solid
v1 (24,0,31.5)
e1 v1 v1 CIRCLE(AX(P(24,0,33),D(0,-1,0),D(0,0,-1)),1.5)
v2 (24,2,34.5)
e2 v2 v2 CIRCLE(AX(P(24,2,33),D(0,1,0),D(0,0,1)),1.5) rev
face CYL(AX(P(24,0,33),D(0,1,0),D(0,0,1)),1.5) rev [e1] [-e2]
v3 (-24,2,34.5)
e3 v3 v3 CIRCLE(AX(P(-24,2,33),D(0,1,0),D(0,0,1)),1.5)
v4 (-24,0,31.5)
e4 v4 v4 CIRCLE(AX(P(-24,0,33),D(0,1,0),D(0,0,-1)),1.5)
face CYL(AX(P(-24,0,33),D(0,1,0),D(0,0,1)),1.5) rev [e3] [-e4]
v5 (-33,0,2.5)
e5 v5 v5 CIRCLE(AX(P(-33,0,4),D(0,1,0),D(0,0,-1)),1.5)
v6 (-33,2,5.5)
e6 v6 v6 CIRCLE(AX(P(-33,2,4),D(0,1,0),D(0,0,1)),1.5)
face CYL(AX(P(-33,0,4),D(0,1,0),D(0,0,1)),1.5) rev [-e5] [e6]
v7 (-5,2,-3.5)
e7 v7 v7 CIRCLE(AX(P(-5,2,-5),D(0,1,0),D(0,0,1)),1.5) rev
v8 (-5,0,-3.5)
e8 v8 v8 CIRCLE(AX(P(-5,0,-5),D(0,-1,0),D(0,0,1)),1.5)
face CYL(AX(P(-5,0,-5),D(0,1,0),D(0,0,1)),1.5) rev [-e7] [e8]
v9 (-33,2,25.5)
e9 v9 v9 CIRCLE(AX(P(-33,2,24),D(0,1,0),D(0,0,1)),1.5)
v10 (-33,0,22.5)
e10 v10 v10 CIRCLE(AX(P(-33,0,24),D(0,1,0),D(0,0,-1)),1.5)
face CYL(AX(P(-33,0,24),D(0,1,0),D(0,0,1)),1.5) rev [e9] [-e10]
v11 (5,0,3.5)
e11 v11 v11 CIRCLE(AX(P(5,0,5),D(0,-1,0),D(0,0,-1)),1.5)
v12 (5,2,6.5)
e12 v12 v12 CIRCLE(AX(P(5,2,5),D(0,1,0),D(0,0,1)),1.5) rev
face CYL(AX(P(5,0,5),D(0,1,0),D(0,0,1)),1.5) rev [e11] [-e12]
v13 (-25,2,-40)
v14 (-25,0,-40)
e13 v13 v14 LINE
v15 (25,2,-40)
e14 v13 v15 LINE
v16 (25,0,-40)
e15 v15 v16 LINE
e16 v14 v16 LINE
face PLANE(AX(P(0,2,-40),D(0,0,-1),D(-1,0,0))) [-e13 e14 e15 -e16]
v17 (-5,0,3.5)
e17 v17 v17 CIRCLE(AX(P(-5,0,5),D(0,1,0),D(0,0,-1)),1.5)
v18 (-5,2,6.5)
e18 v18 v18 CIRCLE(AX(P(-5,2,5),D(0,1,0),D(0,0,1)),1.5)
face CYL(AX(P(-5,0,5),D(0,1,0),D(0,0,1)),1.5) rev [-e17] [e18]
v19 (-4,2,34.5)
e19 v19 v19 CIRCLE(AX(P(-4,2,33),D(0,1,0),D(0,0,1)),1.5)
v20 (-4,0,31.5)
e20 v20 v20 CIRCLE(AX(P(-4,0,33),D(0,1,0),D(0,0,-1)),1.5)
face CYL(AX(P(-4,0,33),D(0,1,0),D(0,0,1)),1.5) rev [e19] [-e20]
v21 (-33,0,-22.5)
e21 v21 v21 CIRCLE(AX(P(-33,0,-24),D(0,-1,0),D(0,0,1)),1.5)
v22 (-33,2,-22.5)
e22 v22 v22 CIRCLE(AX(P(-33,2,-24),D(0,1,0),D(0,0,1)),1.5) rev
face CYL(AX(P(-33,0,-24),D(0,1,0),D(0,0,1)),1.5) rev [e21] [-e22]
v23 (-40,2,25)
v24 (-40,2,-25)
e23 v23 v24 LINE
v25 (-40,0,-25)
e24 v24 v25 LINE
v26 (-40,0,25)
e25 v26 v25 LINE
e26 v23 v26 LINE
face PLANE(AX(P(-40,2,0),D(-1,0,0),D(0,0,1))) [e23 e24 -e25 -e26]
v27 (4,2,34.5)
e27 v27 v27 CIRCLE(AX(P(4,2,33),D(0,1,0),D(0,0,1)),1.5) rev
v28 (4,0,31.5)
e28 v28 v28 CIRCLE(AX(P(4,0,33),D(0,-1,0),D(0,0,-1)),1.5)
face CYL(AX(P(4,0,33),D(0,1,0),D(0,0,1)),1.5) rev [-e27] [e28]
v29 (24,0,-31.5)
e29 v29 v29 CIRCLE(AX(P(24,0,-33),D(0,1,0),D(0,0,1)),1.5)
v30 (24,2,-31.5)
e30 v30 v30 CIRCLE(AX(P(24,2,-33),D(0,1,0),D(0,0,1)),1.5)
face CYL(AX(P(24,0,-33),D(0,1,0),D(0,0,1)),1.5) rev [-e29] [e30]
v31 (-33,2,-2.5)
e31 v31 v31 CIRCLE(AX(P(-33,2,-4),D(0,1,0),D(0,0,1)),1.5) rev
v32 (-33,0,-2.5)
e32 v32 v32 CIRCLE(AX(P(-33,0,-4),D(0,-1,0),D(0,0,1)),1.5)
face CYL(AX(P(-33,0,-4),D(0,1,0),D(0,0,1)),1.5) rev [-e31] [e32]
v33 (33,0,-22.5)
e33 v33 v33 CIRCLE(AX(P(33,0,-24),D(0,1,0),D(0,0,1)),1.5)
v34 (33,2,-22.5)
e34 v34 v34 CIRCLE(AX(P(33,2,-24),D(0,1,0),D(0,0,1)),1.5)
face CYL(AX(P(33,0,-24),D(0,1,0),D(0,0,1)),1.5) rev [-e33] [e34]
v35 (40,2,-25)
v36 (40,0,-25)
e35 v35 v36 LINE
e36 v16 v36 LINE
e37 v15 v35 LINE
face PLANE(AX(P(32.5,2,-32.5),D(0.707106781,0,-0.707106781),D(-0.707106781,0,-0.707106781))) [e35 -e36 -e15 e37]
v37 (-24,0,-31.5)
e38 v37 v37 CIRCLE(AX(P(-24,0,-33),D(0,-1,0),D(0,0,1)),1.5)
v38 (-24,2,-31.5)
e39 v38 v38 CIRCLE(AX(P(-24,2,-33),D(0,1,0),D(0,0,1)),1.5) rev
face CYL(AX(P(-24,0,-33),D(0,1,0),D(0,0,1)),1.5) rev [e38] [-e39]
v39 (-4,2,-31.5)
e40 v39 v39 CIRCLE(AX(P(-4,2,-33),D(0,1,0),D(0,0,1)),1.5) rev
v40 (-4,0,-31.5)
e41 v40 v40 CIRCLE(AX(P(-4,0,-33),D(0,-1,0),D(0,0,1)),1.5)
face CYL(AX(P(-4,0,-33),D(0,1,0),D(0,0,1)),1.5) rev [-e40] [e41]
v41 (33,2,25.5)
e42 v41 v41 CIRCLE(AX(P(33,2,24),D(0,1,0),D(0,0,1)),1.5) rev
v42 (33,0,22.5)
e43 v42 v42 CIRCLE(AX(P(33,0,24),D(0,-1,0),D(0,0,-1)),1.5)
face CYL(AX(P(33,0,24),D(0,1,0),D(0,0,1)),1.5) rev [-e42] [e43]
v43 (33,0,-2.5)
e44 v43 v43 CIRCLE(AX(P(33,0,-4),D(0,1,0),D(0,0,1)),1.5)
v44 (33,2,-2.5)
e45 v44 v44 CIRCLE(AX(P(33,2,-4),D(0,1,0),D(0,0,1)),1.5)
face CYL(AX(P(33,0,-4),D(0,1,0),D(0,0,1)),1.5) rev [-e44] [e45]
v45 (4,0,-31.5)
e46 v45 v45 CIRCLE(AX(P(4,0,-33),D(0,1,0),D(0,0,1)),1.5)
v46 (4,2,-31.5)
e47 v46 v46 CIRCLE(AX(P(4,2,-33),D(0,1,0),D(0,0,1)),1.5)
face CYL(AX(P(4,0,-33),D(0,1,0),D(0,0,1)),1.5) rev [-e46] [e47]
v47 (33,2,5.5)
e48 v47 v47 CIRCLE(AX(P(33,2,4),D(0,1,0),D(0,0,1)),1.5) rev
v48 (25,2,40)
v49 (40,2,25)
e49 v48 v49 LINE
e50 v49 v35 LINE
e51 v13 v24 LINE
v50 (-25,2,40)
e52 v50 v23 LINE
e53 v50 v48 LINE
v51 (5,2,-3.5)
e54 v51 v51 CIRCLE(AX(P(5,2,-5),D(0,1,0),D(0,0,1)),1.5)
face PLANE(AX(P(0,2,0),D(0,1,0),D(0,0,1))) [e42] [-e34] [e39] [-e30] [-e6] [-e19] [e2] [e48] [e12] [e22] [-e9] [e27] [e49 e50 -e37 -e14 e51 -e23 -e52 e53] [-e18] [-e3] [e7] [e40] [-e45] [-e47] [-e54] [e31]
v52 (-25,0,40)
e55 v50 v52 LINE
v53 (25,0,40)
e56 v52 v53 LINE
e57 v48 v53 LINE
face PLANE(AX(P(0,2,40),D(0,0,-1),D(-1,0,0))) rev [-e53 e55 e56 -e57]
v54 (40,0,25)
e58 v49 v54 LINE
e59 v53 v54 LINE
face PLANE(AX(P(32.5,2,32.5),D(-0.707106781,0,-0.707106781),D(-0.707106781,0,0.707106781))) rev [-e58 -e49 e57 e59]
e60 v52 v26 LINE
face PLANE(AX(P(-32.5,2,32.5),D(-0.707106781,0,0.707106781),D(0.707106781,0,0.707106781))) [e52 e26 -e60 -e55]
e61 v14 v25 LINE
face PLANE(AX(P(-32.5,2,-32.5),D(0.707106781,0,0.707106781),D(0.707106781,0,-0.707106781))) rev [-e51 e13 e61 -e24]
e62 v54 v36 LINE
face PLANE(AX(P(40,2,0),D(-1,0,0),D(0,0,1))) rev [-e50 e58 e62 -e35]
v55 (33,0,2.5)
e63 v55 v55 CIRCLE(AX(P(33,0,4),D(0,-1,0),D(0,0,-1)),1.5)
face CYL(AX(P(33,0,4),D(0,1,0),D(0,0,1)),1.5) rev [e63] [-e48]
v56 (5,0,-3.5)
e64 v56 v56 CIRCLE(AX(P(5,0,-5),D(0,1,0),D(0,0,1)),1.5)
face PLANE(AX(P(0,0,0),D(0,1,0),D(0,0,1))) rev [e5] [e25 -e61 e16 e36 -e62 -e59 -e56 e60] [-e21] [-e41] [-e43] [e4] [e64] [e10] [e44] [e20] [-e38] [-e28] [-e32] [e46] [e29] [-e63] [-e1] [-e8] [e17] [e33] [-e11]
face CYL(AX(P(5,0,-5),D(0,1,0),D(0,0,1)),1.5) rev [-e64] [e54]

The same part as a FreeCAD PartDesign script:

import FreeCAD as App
import Part
import Sketcher

V = App.Vector
Q = App.Units.Quantity

doc = App.newDocument("Part")
body = doc.addObject("PartDesign::Body", "Body")

sketch1 = body.newObject("Sketcher::SketchObject", "Sketch")
sketch1.AttachmentSupport = (doc.getObject("XZ_Plane"), [""])
sketch1.MapMode = "FlatFace"
sketch1.addGeometry([
    Part.LineSegment(V(40, -25, 0), V(25, -40, 0)),
    Part.LineSegment(V(25, -40, 0), V(0, -40, 0)),
    Part.LineSegment(V(0, -40, 0), V(0, 0, 0)),
    Part.LineSegment(V(0, 0, 0), V(40, 0, 0)),
    Part.LineSegment(V(40, 0, 0), V(40, -25, 0)),
], False)
sketch1.addConstraint([
    Sketcher.Constraint("Coincident", 0, 2, 1, 1),
    Sketcher.Constraint("Coincident", 1, 2, 2, 1),
    Sketcher.Constraint("Coincident", 2, 2, 3, 1),
    Sketcher.Constraint("Coincident", 3, 2, 4, 1),
    Sketcher.Constraint("Coincident", 4, 2, 0, 1),
    Sketcher.Constraint("Horizontal", 1),
    Sketcher.Constraint("Vertical", 2),
    Sketcher.Constraint("Horizontal", 3),
    Sketcher.Constraint("Vertical", 4),
    Sketcher.Constraint("Coincident", 2, 2, -1, 1),
    Sketcher.Constraint("Equal", 3, 2),
    Sketcher.Constraint("Equal", 1, 4),
    Sketcher.Constraint("DistanceX", 1, 2, 1, 1, Q("25 mm")),
    Sketcher.Constraint("DistanceX", 3, 1, 3, 2, Q("40 mm")),
])
pad1 = body.newObject("PartDesign::Pad", "Pad")
pad1.Profile = sketch1
pad1.Length = 2
pad1.Reversed = True

sketch2 = body.newObject("Sketcher::SketchObject", "Sketch001")
sketch2.AttachmentSupport = (doc.getObject("XZ_Plane"), [""])
sketch2.MapMode = "FlatFace"
sketch2.AttachmentOffset = App.Placement(V(0, 0, -3), App.Rotation())
sketch2.addGeometry([
    Part.Circle(V(33, -24, 0), V(0, 0, 1), 1.5),
    Part.Circle(V(24, -33, 0), V(0, 0, 1), 1.5),
    Part.Circle(V(4, -33, 0), V(0, 0, 1), 1.5),
    Part.Circle(V(33, -4, 0), V(0, 0, 1), 1.5),
    Part.Circle(V(5, -5, 0), V(0, 0, 1), 1.5),
], False)
sketch2.addConstraint([
    Sketcher.Constraint("Equal", 0, 1),
    Sketcher.Constraint("Equal", 1, 2),
    Sketcher.Constraint("Equal", 2, 3),
    Sketcher.Constraint("Equal", 3, 4),
    Sketcher.Constraint("Horizontal", 1, 3, 2, 3),
    Sketcher.Constraint("Vertical", 0, 3, 3, 3),
    Sketcher.Constraint("Diameter", 0, Q("3 mm")),
    Sketcher.Constraint("DistanceX", -1, 1, 0, 3, Q("33 mm")),
    Sketcher.Constraint("DistanceY", 0, 3, -1, 1, Q("24 mm")),
    Sketcher.Constraint("DistanceX", -1, 1, 1, 3, Q("24 mm")),
    Sketcher.Constraint("DistanceY", 1, 3, -1, 1, Q("33 mm")),
    Sketcher.Constraint("DistanceX", -1, 1, 2, 3, Q("4 mm")),
    Sketcher.Constraint("DistanceY", 3, 3, -1, 1, Q("4 mm")),
    Sketcher.Constraint("DistanceX", -1, 1, 4, 3, Q("5 mm")),
    Sketcher.Constraint("DistanceY", 4, 3, -1, 1, Q("5 mm")),
])
pocket1 = body.newObject("PartDesign::Pocket", "Pocket")
pocket1.Profile = sketch2
pocket1.Type = "ThroughAll"
pocket1.Reversed = True
doc.recompute()

mirrored = body.newObject("PartDesign::Mirrored", "Mirrored")
mirrored.Originals = [pad1, pocket1]
mirrored.MirrorPlane = (doc.getObject("YZ_Plane"), [""])
body.Tip = mirrored
doc.recompute()

mirrored2 = body.newObject("PartDesign::Mirrored", "Mirrored001")
mirrored2.Originals = [pad1, pocket1]
mirrored2.MirrorPlane = (doc.getObject("XY_Plane"), [""])
body.Tip = mirrored2

sketch3 = body.newObject("Sketcher::SketchObject", "Sketch002")
sketch3.AttachmentSupport = (doc.getObject("XZ_Plane"), [""])
sketch3.MapMode = "FlatFace"
sketch3.addGeometry([
    Part.LineSegment(V(-40, 25, 0), V(-25, 40, 0)),
    Part.LineSegment(V(-25, 40, 0), V(0, 40, 0)),
    Part.LineSegment(V(0, 40, 0), V(0, 0, 0)),
    Part.LineSegment(V(0, 0, 0), V(-40, 0, 0)),
    Part.LineSegment(V(-40, 0, 0), V(-40, 25, 0)),
], False)
sketch3.addConstraint([
    Sketcher.Constraint("Coincident", 0, 2, 1, 1),
    Sketcher.Constraint("Coincident", 1, 2, 2, 1),
    Sketcher.Constraint("Coincident", 2, 2, 3, 1),
    Sketcher.Constraint("Coincident", 3, 2, 4, 1),
    Sketcher.Constraint("Coincident", 4, 2, 0, 1),
    Sketcher.Constraint("Horizontal", 1),
    Sketcher.Constraint("Vertical", 2),
    Sketcher.Constraint("Horizontal", 3),
    Sketcher.Constraint("Vertical", 4),
    Sketcher.Constraint("Coincident", 2, 2, -1, 1),
    Sketcher.Constraint("Equal", 3, 2),
    Sketcher.Constraint("Equal", 1, 4),
    Sketcher.Constraint("DistanceX", 1, 1, 1, 2, Q("25 mm")),
    Sketcher.Constraint("DistanceX", 3, 2, 3, 1, Q("40 mm")),
])
pad2 = body.newObject("PartDesign::Pad", "Pad001")
pad2.Profile = sketch3
pad2.Length = 2
pad2.Reversed = True

sketch4 = body.newObject("Sketcher::SketchObject", "Sketch003")
sketch4.AttachmentSupport = (doc.getObject("XZ_Plane"), [""])
sketch4.MapMode = "FlatFace"
sketch4.AttachmentOffset = App.Placement(V(0, 0, -3), App.Rotation())
sketch4.addGeometry([
    Part.Circle(V(-33, 24, 0), V(0, 0, 1), 1.5),
    Part.Circle(V(-24, 33, 0), V(0, 0, 1), 1.5),
    Part.Circle(V(-4, 33, 0), V(0, 0, 1), 1.5),
    Part.Circle(V(-33, 4, 0), V(0, 0, 1), 1.5),
    Part.Circle(V(-5, 5, 0), V(0, 0, 1), 1.5),
], False)
sketch4.addConstraint([
    Sketcher.Constraint("Equal", 0, 1),
    Sketcher.Constraint("Equal", 1, 2),
    Sketcher.Constraint("Equal", 2, 3),
    Sketcher.Constraint("Equal", 3, 4),
    Sketcher.Constraint("Horizontal", 1, 3, 2, 3),
    Sketcher.Constraint("Vertical", 0, 3, 3, 3),
    Sketcher.Constraint("Diameter", 0, Q("3 mm")),
    Sketcher.Constraint("DistanceX", 0, 3, -1, 1, Q("33 mm")),
    Sketcher.Constraint("DistanceY", -1, 1, 0, 3, Q("24 mm")),
    Sketcher.Constraint("DistanceX", 1, 3, -1, 1, Q("24 mm")),
    Sketcher.Constraint("DistanceY", -1, 1, 1, 3, Q("33 mm")),
    Sketcher.Constraint("DistanceX", 2, 3, -1, 1, Q("4 mm")),
    Sketcher.Constraint("DistanceY", -1, 1, 3, 3, Q("4 mm")),
    Sketcher.Constraint("DistanceX", 4, 3, -1, 1, Q("5 mm")),
    Sketcher.Constraint("DistanceY", -1, 1, 4, 3, Q("5 mm")),
])
pocket2 = body.newObject("PartDesign::Pocket", "Pocket001")
pocket2.Profile = sketch4
pocket2.Type = "ThroughAll"
pocket2.Reversed = True

doc.recompute()
